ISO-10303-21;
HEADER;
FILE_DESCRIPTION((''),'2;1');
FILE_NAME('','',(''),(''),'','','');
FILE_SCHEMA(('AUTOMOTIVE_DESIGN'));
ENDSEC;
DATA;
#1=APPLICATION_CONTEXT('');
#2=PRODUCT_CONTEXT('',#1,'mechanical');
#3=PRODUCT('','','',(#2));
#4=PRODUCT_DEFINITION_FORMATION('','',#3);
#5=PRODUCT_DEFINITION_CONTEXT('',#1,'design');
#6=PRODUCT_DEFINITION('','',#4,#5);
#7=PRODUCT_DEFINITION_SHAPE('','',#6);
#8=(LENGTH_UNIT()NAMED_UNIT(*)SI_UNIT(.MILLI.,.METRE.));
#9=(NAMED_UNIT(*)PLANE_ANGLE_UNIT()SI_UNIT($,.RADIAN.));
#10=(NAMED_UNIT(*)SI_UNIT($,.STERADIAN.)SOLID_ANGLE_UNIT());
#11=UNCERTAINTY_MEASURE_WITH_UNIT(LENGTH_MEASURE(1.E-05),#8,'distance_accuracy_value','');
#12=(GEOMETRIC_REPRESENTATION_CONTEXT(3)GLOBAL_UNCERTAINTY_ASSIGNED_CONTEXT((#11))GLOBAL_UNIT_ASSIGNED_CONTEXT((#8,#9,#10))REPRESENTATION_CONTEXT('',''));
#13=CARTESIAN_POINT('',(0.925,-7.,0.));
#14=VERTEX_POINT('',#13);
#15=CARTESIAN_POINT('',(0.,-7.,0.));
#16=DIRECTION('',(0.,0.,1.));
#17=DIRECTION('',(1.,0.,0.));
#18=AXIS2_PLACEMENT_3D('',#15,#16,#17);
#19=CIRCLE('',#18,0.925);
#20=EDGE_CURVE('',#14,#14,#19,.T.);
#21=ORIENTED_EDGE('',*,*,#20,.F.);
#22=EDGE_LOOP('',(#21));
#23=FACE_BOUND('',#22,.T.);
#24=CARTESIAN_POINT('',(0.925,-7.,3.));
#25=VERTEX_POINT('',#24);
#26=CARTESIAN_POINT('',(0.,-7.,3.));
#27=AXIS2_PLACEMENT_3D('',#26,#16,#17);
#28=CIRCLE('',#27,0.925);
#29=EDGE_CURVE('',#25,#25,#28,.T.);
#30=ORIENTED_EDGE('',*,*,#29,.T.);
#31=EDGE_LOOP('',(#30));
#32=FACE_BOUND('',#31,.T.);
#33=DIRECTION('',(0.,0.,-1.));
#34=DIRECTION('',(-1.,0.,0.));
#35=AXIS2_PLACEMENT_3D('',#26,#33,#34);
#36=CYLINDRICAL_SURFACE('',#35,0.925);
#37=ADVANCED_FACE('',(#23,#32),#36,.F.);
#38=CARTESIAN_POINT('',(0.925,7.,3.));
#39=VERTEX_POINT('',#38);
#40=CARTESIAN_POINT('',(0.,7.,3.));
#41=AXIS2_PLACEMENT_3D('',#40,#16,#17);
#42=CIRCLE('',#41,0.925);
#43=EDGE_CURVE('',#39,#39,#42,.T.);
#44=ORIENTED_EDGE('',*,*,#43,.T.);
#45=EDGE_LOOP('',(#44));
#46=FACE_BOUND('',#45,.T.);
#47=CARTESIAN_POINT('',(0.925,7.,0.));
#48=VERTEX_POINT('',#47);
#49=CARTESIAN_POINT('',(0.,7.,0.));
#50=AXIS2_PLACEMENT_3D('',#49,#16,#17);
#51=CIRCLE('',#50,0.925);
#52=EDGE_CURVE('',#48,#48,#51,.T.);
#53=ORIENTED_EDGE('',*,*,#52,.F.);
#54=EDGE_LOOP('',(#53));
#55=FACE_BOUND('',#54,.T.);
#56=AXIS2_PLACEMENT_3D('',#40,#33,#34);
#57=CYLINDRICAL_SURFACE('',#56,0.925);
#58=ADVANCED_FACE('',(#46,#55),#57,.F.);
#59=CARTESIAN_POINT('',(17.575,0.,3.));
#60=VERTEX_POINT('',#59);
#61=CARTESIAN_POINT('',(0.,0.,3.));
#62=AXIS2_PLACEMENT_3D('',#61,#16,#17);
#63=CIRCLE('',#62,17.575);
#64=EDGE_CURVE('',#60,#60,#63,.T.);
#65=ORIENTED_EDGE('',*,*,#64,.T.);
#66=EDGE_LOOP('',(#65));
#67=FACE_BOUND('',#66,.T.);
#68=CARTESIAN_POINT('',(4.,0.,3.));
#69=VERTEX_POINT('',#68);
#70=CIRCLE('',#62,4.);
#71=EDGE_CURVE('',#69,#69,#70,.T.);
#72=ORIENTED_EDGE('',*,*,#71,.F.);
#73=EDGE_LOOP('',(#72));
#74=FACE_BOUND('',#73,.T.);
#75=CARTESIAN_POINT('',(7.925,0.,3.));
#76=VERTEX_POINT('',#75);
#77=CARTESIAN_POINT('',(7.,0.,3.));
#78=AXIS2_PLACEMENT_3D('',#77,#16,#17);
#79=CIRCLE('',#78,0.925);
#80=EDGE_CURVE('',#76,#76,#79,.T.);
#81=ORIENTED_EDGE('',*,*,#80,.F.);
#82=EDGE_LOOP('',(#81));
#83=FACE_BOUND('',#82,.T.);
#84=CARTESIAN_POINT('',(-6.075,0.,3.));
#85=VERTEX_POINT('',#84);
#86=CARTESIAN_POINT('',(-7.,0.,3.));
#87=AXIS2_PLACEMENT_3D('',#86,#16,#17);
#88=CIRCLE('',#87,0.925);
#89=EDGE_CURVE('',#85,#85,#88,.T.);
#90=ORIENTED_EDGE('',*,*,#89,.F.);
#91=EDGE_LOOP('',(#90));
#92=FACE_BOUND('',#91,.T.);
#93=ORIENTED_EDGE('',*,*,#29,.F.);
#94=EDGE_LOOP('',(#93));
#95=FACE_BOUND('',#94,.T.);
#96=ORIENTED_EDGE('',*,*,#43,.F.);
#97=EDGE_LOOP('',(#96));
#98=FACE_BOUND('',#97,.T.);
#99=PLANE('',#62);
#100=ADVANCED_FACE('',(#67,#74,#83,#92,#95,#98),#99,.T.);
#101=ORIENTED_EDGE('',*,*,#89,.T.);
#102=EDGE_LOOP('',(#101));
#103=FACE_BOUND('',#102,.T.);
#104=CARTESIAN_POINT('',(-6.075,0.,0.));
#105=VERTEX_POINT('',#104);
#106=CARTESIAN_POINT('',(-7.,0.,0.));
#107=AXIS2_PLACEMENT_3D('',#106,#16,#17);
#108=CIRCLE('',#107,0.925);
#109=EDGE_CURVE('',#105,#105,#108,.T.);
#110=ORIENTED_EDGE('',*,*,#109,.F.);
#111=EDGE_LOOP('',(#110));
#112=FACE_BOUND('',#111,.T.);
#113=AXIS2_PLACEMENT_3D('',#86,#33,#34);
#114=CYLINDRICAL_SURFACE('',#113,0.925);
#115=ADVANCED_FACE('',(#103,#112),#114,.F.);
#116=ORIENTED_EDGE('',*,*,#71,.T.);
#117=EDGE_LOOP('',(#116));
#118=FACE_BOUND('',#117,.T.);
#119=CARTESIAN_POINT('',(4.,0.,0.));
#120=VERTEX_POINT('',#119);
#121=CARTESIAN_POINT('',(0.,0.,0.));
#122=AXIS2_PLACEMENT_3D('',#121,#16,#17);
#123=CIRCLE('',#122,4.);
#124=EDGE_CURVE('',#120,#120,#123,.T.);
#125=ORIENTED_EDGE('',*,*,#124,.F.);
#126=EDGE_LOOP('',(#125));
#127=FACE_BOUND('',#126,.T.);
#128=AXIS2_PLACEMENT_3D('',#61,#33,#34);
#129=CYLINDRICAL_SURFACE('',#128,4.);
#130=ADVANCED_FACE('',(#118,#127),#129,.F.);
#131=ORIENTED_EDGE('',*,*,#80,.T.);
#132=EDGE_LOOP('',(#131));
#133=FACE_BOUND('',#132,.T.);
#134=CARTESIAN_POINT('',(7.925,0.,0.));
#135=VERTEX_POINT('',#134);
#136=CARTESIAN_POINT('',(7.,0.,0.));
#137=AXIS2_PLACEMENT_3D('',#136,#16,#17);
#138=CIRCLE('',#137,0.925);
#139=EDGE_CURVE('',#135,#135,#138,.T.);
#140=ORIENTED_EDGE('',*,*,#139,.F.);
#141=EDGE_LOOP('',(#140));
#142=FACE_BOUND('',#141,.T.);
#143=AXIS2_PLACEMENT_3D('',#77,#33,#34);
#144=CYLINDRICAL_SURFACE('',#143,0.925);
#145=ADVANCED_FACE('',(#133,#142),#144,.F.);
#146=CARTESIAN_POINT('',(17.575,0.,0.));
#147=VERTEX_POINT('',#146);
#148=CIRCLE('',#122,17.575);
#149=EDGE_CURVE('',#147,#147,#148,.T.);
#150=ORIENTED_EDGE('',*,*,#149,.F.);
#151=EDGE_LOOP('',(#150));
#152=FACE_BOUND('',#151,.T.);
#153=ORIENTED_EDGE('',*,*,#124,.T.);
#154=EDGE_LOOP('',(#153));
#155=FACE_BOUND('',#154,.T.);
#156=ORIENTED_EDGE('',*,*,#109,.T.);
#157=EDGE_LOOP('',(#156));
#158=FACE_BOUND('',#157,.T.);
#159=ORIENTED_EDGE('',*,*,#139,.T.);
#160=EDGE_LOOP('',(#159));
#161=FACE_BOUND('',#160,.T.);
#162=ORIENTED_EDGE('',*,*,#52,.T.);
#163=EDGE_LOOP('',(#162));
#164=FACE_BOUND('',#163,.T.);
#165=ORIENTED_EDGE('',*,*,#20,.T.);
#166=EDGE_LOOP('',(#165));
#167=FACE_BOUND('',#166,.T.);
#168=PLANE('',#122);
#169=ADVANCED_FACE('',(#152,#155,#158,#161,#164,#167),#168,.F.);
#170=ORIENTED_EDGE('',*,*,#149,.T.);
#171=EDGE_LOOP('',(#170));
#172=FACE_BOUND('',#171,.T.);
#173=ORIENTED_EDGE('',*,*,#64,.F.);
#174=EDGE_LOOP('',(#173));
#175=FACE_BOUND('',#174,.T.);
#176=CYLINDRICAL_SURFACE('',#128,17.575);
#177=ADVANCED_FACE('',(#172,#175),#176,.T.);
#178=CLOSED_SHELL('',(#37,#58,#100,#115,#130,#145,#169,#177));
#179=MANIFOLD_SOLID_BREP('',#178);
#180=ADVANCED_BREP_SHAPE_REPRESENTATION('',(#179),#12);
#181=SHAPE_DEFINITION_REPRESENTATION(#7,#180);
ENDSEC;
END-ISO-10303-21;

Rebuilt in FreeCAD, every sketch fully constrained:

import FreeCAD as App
import Part
import Sketcher

doc = App.newDocument("Part")
params = doc.addObject("Spreadsheet::Sheet", "Params")
for row, (alias, value) in enumerate([
    ("sketch1_diameter", "8 mm"),
    ("sketch1_diameter2", "35.15 mm"),
    ("sketch1_diameter3", "1.85 mm"),
    ("pad1_length", "3 mm"),
], start=1):
    params.set(f"A{row}", alias)
    params.set(f"B{row}", "=" + value)
    params.setAlias(f"B{row}", alias)

body = doc.addObject("PartDesign::Body", "Body")

# Sketch on XY plane
sketch1 = body.newObject("Sketcher::SketchObject", "Sketch")
sketch1.AttachmentSupport = (doc.getObject("XY_Plane"), [""])
sketch1.MapMode = "FlatFace"
sketch1.addGeometry([
    Part.Circle(App.Vector(0, 0, 0), App.Vector(0, 0, 1), 17.6),  # 0
    Part.Circle(App.Vector(0, -7, 0), App.Vector(0, 0, 1), 0.9),  # 1
    Part.Circle(App.Vector(-7, 0, 0), App.Vector(0, 0, 1), 0.9),  # 2
    Part.Circle(App.Vector(0, 0, 0), App.Vector(0, 0, 1), 4),  # 3
    Part.Circle(App.Vector(7, 0, 0), App.Vector(0, 0, 1), 0.9),  # 4
    Part.Circle(App.Vector(0, 7, 0), App.Vector(0, 0, 1), 0.9),  # 5
], False)
sketch1.addConstraint([
    Sketcher.Constraint("Coincident", 0, 3, -1, 1),
    Sketcher.Constraint("Coincident", 3, 3, -1, 1),
    Sketcher.Constraint("Equal", 1, 2),
    Sketcher.Constraint("Equal", 2, 4),
    Sketcher.Constraint("Equal", 4, 5),
    Sketcher.Constraint("Symmetric", 2, 3, 4, 3, -1, 1),
    Sketcher.Constraint("Symmetric", 1, 3, 5, 3, -1, 1),
    Sketcher.Constraint("PointOnObject", 1, 3, -2),
    Sketcher.Constraint("PointOnObject", 2, 3, -1),
    Sketcher.Constraint("Diameter", 3, 8.0),
    Sketcher.Constraint("Diameter", 0, 35.15),
    Sketcher.Constraint("Diameter", 1, 1.85),
    Sketcher.Constraint("DistanceY", 1, 3, -1, 1, 7.0),
    Sketcher.Constraint("DistanceX", 2, 3, -1, 1, 7.0),
])
sketch1.setExpression("Constraints[9]", "Params.sketch1_diameter")
sketch1.setExpression("Constraints[10]", "Params.sketch1_diameter2")
sketch1.setExpression("Constraints[11]", "Params.sketch1_diameter3")
pad1 = body.newObject("PartDesign::Pad", "Pad")
pad1.Profile = sketch1
pad1.setExpression("Length", "Params.pad1_length")

doc.recompute()
